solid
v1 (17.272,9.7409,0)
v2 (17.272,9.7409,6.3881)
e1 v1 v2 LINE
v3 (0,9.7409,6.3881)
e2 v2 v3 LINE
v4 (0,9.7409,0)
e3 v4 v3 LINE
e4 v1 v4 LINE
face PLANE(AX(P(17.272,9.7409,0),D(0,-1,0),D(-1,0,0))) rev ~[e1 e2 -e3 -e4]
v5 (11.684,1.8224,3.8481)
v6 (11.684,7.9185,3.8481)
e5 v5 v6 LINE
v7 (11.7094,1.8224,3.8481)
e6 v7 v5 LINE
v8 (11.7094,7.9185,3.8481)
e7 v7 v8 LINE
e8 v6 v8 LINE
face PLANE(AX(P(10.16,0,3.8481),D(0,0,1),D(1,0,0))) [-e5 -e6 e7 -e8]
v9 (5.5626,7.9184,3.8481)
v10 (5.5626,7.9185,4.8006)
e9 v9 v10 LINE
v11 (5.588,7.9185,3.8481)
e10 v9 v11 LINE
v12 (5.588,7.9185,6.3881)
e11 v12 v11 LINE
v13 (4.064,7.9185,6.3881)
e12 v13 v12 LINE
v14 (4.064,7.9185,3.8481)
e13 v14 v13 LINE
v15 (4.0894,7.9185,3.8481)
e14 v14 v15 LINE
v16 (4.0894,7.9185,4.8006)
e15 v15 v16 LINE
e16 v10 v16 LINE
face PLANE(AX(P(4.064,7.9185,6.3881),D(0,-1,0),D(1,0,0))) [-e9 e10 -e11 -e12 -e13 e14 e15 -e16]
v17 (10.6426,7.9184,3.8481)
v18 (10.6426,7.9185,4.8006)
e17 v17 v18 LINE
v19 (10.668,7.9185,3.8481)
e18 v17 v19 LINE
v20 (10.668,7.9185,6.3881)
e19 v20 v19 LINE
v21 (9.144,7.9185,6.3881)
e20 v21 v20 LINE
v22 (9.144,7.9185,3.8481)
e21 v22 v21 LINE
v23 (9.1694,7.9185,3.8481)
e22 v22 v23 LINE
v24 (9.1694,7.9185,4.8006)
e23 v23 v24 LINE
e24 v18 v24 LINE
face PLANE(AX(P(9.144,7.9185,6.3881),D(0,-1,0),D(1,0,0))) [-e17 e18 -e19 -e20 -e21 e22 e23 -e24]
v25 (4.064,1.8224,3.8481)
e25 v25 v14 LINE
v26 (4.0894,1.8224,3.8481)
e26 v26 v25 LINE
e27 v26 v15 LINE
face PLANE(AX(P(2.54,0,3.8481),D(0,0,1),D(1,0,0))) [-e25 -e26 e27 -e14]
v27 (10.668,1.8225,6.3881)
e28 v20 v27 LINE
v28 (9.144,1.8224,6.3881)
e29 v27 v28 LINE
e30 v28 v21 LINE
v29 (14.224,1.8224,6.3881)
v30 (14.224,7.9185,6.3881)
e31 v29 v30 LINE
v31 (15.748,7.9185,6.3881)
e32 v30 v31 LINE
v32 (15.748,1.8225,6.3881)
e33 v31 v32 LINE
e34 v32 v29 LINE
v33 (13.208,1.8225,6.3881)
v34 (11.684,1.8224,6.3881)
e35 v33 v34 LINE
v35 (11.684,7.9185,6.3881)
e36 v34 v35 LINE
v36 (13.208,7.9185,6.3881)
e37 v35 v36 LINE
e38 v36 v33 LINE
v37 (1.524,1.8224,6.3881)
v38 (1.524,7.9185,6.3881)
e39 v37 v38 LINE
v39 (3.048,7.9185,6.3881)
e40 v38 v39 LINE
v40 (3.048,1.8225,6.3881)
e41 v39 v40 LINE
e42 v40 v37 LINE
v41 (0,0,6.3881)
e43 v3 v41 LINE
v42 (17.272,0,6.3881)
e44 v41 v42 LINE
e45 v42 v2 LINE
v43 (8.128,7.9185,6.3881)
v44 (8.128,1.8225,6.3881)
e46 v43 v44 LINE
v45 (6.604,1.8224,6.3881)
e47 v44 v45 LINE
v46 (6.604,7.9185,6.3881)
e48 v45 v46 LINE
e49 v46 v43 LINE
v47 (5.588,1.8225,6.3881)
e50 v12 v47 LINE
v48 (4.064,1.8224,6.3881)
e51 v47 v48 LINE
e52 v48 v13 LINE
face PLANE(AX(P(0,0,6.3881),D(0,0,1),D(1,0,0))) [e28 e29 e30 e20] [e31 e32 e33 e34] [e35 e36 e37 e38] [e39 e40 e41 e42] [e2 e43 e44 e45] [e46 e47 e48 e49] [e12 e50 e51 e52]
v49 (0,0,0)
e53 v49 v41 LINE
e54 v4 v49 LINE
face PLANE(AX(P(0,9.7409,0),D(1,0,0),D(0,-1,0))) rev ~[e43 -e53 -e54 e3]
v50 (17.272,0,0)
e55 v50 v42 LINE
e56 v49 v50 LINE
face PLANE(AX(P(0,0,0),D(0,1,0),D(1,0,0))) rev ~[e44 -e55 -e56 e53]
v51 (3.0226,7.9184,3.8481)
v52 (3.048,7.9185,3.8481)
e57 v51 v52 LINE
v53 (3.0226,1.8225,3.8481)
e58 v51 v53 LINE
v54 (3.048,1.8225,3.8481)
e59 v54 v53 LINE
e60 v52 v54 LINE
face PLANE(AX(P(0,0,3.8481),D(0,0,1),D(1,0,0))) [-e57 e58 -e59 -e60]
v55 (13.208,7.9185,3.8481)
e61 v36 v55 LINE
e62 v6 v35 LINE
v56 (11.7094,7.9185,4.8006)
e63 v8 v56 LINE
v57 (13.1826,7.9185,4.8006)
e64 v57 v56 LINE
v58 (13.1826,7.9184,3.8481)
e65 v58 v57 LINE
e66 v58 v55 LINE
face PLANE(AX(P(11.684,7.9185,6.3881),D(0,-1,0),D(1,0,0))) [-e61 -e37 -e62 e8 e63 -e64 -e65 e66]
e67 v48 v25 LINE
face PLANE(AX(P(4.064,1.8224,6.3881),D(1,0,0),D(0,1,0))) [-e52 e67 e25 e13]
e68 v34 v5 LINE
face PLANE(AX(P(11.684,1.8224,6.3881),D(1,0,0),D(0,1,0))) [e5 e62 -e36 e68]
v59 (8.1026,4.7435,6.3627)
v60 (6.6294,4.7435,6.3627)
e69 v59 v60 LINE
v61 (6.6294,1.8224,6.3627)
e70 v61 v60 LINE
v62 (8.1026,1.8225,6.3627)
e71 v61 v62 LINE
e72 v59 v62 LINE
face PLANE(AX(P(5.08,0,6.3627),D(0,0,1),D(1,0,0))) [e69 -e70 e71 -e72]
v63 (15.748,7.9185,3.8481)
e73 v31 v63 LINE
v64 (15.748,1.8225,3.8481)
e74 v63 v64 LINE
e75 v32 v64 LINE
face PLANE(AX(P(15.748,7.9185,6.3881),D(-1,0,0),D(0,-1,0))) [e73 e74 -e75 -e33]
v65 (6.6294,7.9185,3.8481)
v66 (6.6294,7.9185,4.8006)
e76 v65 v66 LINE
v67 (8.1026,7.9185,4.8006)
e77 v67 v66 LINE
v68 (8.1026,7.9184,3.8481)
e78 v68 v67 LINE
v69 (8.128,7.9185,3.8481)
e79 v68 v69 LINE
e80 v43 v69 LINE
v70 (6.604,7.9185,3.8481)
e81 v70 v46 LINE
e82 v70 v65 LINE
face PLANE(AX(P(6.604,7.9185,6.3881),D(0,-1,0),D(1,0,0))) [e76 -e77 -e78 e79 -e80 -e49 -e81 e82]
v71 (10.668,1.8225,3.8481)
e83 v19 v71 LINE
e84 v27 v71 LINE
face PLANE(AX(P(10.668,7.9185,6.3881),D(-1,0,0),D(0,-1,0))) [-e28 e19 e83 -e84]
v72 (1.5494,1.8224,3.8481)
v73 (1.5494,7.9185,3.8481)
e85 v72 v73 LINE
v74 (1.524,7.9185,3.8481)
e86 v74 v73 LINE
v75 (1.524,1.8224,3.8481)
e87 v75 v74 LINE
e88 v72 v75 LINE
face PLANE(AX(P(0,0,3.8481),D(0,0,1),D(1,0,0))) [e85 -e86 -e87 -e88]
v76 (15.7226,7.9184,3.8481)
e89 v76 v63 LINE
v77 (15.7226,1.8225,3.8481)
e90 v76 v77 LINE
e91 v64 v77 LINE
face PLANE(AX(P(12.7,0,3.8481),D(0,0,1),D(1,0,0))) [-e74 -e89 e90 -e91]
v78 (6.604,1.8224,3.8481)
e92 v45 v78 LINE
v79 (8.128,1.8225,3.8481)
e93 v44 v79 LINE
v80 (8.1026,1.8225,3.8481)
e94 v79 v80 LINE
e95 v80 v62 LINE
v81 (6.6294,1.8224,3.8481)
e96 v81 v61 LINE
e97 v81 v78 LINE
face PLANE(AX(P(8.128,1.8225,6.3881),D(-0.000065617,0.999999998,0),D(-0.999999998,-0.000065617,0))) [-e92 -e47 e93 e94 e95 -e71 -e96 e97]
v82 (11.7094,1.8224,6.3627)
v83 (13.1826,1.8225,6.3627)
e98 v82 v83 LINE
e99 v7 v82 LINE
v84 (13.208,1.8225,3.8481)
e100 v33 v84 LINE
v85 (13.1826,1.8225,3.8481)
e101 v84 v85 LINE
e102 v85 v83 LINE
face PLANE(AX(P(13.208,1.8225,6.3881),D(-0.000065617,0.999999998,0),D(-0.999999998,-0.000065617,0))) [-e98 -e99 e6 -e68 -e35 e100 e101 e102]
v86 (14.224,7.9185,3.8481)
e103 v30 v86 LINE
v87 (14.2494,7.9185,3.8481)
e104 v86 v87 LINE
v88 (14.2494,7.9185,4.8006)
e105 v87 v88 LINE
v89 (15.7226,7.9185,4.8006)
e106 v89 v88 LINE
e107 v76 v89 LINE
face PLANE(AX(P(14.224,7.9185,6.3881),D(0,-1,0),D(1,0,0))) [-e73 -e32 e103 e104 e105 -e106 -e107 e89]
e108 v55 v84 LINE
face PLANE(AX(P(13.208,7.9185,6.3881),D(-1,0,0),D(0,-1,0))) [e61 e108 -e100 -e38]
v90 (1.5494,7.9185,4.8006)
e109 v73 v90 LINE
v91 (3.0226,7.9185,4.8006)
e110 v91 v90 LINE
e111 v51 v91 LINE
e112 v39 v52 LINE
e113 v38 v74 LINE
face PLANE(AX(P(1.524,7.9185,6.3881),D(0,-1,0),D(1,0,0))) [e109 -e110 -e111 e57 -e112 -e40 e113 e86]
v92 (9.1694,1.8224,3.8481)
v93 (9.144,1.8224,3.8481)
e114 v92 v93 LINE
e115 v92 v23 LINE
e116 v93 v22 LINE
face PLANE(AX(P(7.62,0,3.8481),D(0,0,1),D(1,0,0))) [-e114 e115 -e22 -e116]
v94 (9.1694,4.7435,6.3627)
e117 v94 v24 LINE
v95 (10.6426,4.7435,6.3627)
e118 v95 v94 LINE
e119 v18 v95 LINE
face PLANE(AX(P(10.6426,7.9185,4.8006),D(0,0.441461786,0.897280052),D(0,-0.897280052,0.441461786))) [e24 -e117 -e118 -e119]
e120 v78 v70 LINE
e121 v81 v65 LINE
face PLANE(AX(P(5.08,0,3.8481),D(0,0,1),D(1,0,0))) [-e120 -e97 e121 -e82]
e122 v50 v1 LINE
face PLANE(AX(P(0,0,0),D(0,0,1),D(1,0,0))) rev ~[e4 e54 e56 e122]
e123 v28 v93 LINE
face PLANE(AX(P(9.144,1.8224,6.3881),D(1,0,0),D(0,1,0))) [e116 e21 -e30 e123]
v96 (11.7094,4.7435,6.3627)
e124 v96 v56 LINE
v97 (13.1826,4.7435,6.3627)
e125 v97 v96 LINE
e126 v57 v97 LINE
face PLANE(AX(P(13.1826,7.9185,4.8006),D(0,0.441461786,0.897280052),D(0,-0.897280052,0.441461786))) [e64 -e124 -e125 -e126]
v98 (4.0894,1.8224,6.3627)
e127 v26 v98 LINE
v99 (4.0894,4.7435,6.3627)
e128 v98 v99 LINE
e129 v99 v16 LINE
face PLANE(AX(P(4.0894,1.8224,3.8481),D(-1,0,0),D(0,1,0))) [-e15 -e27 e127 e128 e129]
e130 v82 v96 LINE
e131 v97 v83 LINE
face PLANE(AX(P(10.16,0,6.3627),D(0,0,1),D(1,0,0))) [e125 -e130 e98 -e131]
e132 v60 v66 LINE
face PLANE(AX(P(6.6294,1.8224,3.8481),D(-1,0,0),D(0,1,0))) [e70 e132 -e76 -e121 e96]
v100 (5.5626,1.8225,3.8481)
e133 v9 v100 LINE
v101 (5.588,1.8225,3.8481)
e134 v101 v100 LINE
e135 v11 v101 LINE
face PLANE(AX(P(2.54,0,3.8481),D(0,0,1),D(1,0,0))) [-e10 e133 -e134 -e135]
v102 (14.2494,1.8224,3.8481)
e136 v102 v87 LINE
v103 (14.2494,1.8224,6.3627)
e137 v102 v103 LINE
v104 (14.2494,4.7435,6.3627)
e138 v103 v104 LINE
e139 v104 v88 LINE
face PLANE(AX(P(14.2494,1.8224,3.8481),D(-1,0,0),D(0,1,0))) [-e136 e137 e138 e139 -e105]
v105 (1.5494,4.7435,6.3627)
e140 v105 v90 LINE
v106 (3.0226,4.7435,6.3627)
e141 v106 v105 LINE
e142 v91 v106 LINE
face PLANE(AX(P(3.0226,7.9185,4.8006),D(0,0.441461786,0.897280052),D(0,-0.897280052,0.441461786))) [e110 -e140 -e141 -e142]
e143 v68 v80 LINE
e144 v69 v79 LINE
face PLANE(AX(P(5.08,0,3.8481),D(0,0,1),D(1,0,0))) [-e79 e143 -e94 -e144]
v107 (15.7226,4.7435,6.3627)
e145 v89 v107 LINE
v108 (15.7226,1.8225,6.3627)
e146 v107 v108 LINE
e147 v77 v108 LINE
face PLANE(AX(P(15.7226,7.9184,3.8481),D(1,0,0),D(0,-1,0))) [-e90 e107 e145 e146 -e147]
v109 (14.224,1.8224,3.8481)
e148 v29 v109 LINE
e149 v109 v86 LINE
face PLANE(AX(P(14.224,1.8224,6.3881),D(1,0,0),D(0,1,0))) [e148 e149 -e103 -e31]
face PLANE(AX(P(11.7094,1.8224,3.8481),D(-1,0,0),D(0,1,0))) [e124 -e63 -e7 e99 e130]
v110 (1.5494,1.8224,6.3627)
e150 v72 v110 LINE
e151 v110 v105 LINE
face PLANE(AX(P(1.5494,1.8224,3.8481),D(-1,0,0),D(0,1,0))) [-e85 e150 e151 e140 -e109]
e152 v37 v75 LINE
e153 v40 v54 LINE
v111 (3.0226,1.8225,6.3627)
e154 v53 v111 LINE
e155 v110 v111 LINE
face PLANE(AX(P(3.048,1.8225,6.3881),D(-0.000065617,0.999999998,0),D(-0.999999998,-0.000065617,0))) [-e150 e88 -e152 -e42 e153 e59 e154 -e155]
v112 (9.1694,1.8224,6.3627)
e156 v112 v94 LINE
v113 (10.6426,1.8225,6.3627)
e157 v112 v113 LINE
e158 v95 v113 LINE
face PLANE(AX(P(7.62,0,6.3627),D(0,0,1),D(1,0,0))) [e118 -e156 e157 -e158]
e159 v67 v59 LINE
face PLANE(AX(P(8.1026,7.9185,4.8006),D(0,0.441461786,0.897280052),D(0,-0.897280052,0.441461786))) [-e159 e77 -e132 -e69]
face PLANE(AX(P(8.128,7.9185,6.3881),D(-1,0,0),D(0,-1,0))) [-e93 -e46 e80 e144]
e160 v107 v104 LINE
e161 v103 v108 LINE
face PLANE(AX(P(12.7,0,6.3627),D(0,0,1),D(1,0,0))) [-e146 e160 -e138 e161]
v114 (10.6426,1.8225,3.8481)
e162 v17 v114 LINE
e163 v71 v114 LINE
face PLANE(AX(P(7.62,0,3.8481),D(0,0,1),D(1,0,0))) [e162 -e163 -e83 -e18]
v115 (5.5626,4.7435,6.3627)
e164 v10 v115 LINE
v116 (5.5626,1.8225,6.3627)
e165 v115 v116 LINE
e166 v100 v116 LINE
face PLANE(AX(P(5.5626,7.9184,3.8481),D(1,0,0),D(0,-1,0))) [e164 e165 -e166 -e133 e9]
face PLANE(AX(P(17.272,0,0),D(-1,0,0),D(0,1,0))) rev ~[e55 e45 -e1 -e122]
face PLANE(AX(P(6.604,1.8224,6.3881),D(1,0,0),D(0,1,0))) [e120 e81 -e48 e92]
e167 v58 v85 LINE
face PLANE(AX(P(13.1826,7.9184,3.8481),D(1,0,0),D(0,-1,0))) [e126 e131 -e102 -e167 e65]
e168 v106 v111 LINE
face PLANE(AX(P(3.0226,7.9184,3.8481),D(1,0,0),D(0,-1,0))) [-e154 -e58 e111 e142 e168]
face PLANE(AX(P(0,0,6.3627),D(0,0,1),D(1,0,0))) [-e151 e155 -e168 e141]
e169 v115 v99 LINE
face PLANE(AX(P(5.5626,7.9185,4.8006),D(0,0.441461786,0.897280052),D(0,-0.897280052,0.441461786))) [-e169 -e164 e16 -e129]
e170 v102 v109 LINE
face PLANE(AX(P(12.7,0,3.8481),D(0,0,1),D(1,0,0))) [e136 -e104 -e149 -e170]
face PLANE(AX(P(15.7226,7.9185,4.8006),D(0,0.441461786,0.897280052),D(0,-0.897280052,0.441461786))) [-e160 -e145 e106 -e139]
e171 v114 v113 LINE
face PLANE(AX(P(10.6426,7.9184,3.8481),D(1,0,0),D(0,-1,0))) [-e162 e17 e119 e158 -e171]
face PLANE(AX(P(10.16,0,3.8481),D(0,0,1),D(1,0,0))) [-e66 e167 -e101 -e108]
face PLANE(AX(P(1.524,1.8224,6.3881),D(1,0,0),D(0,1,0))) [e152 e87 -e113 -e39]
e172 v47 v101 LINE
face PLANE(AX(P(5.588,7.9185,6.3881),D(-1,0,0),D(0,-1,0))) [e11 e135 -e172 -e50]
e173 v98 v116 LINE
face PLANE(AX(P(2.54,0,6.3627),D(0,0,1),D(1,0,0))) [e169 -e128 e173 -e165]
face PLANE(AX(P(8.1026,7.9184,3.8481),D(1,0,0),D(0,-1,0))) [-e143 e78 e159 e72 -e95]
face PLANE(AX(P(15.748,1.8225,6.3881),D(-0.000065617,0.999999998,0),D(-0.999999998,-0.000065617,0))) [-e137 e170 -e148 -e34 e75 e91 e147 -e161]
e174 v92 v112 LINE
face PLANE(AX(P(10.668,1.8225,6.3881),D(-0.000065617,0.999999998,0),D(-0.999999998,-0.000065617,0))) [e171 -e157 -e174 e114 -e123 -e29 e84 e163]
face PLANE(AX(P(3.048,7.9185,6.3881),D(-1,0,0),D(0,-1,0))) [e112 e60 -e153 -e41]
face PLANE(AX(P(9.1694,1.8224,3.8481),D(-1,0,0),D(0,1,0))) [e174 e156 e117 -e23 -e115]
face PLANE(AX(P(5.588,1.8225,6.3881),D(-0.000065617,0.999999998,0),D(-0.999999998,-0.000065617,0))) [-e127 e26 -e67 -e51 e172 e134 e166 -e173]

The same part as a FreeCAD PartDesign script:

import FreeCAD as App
import Part
import Sketcher
from FreeCAD import Vector
Q = App.Units.Quantity


def add_polygon(sketch, points):
    """Adds a closed chain of lines whose ends are joined by coincident constraints."""
    first, n = sketch.GeometryCount, len(points)
    for a, b in zip(points, points[1:] + points[:1]):
        sketch.addGeometry(Part.LineSegment(App.Vector(*a, 0), App.Vector(*b, 0)), False)
    for i in range(n):
        sketch.addConstraint(Sketcher.Constraint("Coincident", first + i, 2, first + (i + 1) % n, 1))

doc = App.newDocument("Part")
body = doc.addObject("PartDesign::Body", "Body")

# Sketch on XY plane
sketch1 = doc.addObject("Sketcher::SketchObject", "Sketch")
body.addObject(sketch1)
sketch1.AttachmentSupport = (doc.XY_Plane, [""])
sketch1.MapMode = "FlatFace"
add_polygon(sketch1, [(0, 10), (0, 0), (17, 0), (17, 10)])  # lines 0-3
sketch1.addConstraint([
    Sketcher.Constraint("Vertical", 0),
    Sketcher.Constraint("Horizontal", 1),
    Sketcher.Constraint("Vertical", 2),
    Sketcher.Constraint("Horizontal", 3),
    Sketcher.Constraint("Coincident", 0, 2, -1, 1),
    Sketcher.Constraint("DistanceX", 1, 1, 1, 2, Q("0.68 in")),
    Sketcher.Constraint("DistanceY", 0, 2, 0, 1, Q("0.3835 in")),
])
pad1 = doc.addObject("PartDesign::Pad", "Pad")
body.addObject(pad1)
pad1.Profile = sketch1
pad1.Length = Q("0.2515 in")

# Sketch on XY plane
sketch2 = doc.addObject("Sketcher::SketchObject", "Sketch001")
body.addObject(sketch2)
sketch2.AttachmentSupport = (doc.XY_Plane, [""])
sketch2.MapMode = "FlatFace"
sketch2.AttachmentOffset = App.Placement(Vector(0, 0, 0.2515 * 25.4), App.Rotation())
add_polygon(sketch2, [(1.5, 7.9), (1.5, 1.8), (3, 1.8), (3, 7.9)])  # lines 0-3
sketch2.addConstraint([
    Sketcher.Constraint("Vertical", 0),
    Sketcher.Constraint("Horizontal", 1),
    Sketcher.Constraint("Vertical", 2),
    Sketcher.Constraint("Horizontal", 3),
    Sketcher.Constraint("DistanceX", 1, 1, 1, 2, Q("0.06 in")),
    Sketcher.Constraint("DistanceY", 0, 2, 0, 1, Q("0.24 in")),
    Sketcher.Constraint("DistanceX", -1, 1, 0, 2, Q("0.06 in")),
    Sketcher.Constraint("DistanceY", -1, 1, 0, 2, 1.8224),
])
pocket1 = doc.addObject("PartDesign::Pocket", "Pocket")
body.addObject(pocket1)
pocket1.Profile = sketch2
pocket1.Length = Q("0.1 in")

# Sketch on XY plane
sketch3 = doc.addObject("Sketcher::SketchObject", "Sketch002")
body.addObject(sketch3)
sketch3.AttachmentSupport = (doc.XY_Plane, [""])
sketch3.MapMode = "FlatFace"
sketch3.AttachmentOffset = App.Placement(Vector(0, 0, 0.1515 * 25.4), App.Rotation())
add_polygon(sketch3, [(1.5, 7.9), (1.5, 1.8), (3, 1.8), (3, 7.9)])  # lines 0-3
sketch3.addConstraint([
    Sketcher.Constraint("Vertical", 0),
    Sketcher.Constraint("Horizontal", 1),
    Sketcher.Constraint("Vertical", 2),
    Sketcher.Constraint("Horizontal", 3),
    Sketcher.Constraint("DistanceY", 0, 2, 0, 1, Q("0.24 in")),
    Sketcher.Constraint("DistanceX", 1, 1, 1, 2, Q("0.058 in")),
    Sketcher.Constraint("DistanceX", -1, 1, 0, 2, Q("0.061 in")),
    Sketcher.Constraint("DistanceY", -1, 1, 0, 2, 1.8224),
])
pad2 = doc.addObject("PartDesign::Pad", "Pad001")
body.addObject(pad2)
pad2.Profile = sketch3
pad2.Length = Q("0.099 in")

# Sketch on YZ plane
sketch4 = doc.addObject("Sketcher::SketchObject", "Sketch003")
body.addObject(sketch4)
sketch4.AttachmentSupport = (doc.YZ_Plane, [""])
sketch4.MapMode = "FlatFace"
sketch4.AttachmentOffset = App.Placement(Vector(0, 0, 0.119 * 25.4), App.Rotation())
add_polygon(sketch4, [(7.9, 4.8), (7.9, 6.4), (4.7, 6.4)])  # lines 0-2
sketch4.addConstraint([
    Sketcher.Constraint("Vertical", 0),
    Sketcher.Constraint("Horizontal", 1),
    Sketcher.Constraint("DistanceX", 1, 2, 1, 1, Q("0.125 in")),
    Sketcher.Constraint("DistanceY", 0, 1, 0, 2, Q("0.0615 in")),
    Sketcher.Constraint("DistanceY", -1, 1, 2, 2, Q("0.189 in")),
    Sketcher.Constraint("DistanceX", -1, 1, 0, 2, 7.9185),
])
pocket2 = doc.addObject("PartDesign::Pocket", "Pocket001")
body.addObject(pocket2)
pocket2.Profile = sketch4
pocket2.Length = Q("0.059 in")
doc.recompute()

linearpattern = doc.addObject("PartDesign::LinearPattern", "LinearPattern")
body.addObject(linearpattern)
linearpattern.Originals = [pocket1]
linearpattern.Direction = (doc.X_Axis, [""])
linearpattern.Mode = "offset"
linearpattern.Offset = Q("0.1 in")
linearpattern.Occurrences = 6
body.Tip = linearpattern
doc.recompute()

linearpattern2 = doc.addObject("PartDesign::LinearPattern", "LinearPattern001")
body.addObject(linearpattern2)
linearpattern2.Originals = [pad2, pocket2]
linearpattern2.Direction = (doc.X_Axis, [""])
linearpattern2.Mode = "offset"
linearpattern2.Offset = Q("0.1 in")
linearpattern2.Occurrences = 6
body.Tip = linearpattern2

doc.recompute()
